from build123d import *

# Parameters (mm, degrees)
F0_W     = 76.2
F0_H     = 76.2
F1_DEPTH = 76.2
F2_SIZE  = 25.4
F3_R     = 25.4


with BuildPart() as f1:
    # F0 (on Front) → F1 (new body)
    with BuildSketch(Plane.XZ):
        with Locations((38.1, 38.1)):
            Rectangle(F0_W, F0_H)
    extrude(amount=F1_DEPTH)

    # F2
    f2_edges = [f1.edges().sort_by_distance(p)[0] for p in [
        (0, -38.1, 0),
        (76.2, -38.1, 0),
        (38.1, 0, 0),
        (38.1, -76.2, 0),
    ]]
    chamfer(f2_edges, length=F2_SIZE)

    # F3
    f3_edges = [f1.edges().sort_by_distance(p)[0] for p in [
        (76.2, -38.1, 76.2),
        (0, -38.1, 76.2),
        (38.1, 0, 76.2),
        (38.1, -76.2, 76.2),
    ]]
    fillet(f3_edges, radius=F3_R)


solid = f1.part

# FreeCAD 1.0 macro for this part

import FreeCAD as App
import Part
import Sketcher
from FreeCAD import Vector
Q = App.Units.Quantity


def edges_at(feature, points):
    """Names of the edges that pass closest to the given points."""
    edges = feature.Shape.Edges
    near = lambda p: min(range(len(edges)), key=lambda i: edges[i].distToShape(Part.Vertex(*p))[0])
    return sorted({f"Edge{near(p) + 1}" for p in points})


def add_polygon(sketch, points):
    """Adds a closed chain of lines whose ends are joined by coincident constraints."""
    first, n = sketch.GeometryCount, len(points)
    for a, b in zip(points, points[1:] + points[:1]):
        sketch.addGeometry(Part.LineSegment(App.Vector(*a, 0), App.Vector(*b, 0)), False)
    for i in range(n):
        sketch.addConstraint(Sketcher.Constraint("Coincident", first + i, 2, first + (i + 1) % n, 1))

doc = App.newDocument("Part")
body = doc.addObject("PartDesign::Body", "Body")

# Sketch on XZ plane
sketch1 = body.newObject("Sketcher::SketchObject", "Sketch")
sketch1.AttachmentSupport = (doc.getObject("XZ_Plane"), [""])
sketch1.MapMode = "FlatFace"
add_polygon(sketch1, [(0, 76), (0, 0), (76, 0), (76, 76)])  # lines 0-3
sketch1.addConstraint([
    Sketcher.Constraint("Vertical", 0),
    Sketcher.Constraint("Horizontal", 1),
    Sketcher.Constraint("Vertical", 2),
    Sketcher.Constraint("Horizontal", 3),
    Sketcher.Constraint("Coincident", 0, 2, -1, 1),
    Sketcher.Constraint("Equal", 3, 0),
    Sketcher.Constraint("DistanceX", 1, 1, 1, 2, Q("3 in")),
])
pad1 = body.newObject("PartDesign::Pad", "Pad")
pad1.Profile = sketch1
pad1.Length = Q("3 in")
doc.recompute()

chamfer = body.newObject("PartDesign::Chamfer", "Chamfer")
chamfer.Base = (pad1, edges_at(pad1, [
    (0, -38.1, 0),
    (76.2, -38.1, 0),
    (38.1, 0, 0),
    (38.1, -76.2, 0),
]))
chamfer.Size = Q("1 in")
doc.recompute()

fillet = body.newObject("PartDesign::Fillet", "Fillet")
fillet.Base = (chamfer, edges_at(chamfer, [
    (76.2, -38.1, 76.2),
    (0, -38.1, 76.2),
    (38.1, 0, 76.2),
    (38.1, -76.2, 76.2),
]))
fillet.Radius = Q("1 in")

doc.recompute()
